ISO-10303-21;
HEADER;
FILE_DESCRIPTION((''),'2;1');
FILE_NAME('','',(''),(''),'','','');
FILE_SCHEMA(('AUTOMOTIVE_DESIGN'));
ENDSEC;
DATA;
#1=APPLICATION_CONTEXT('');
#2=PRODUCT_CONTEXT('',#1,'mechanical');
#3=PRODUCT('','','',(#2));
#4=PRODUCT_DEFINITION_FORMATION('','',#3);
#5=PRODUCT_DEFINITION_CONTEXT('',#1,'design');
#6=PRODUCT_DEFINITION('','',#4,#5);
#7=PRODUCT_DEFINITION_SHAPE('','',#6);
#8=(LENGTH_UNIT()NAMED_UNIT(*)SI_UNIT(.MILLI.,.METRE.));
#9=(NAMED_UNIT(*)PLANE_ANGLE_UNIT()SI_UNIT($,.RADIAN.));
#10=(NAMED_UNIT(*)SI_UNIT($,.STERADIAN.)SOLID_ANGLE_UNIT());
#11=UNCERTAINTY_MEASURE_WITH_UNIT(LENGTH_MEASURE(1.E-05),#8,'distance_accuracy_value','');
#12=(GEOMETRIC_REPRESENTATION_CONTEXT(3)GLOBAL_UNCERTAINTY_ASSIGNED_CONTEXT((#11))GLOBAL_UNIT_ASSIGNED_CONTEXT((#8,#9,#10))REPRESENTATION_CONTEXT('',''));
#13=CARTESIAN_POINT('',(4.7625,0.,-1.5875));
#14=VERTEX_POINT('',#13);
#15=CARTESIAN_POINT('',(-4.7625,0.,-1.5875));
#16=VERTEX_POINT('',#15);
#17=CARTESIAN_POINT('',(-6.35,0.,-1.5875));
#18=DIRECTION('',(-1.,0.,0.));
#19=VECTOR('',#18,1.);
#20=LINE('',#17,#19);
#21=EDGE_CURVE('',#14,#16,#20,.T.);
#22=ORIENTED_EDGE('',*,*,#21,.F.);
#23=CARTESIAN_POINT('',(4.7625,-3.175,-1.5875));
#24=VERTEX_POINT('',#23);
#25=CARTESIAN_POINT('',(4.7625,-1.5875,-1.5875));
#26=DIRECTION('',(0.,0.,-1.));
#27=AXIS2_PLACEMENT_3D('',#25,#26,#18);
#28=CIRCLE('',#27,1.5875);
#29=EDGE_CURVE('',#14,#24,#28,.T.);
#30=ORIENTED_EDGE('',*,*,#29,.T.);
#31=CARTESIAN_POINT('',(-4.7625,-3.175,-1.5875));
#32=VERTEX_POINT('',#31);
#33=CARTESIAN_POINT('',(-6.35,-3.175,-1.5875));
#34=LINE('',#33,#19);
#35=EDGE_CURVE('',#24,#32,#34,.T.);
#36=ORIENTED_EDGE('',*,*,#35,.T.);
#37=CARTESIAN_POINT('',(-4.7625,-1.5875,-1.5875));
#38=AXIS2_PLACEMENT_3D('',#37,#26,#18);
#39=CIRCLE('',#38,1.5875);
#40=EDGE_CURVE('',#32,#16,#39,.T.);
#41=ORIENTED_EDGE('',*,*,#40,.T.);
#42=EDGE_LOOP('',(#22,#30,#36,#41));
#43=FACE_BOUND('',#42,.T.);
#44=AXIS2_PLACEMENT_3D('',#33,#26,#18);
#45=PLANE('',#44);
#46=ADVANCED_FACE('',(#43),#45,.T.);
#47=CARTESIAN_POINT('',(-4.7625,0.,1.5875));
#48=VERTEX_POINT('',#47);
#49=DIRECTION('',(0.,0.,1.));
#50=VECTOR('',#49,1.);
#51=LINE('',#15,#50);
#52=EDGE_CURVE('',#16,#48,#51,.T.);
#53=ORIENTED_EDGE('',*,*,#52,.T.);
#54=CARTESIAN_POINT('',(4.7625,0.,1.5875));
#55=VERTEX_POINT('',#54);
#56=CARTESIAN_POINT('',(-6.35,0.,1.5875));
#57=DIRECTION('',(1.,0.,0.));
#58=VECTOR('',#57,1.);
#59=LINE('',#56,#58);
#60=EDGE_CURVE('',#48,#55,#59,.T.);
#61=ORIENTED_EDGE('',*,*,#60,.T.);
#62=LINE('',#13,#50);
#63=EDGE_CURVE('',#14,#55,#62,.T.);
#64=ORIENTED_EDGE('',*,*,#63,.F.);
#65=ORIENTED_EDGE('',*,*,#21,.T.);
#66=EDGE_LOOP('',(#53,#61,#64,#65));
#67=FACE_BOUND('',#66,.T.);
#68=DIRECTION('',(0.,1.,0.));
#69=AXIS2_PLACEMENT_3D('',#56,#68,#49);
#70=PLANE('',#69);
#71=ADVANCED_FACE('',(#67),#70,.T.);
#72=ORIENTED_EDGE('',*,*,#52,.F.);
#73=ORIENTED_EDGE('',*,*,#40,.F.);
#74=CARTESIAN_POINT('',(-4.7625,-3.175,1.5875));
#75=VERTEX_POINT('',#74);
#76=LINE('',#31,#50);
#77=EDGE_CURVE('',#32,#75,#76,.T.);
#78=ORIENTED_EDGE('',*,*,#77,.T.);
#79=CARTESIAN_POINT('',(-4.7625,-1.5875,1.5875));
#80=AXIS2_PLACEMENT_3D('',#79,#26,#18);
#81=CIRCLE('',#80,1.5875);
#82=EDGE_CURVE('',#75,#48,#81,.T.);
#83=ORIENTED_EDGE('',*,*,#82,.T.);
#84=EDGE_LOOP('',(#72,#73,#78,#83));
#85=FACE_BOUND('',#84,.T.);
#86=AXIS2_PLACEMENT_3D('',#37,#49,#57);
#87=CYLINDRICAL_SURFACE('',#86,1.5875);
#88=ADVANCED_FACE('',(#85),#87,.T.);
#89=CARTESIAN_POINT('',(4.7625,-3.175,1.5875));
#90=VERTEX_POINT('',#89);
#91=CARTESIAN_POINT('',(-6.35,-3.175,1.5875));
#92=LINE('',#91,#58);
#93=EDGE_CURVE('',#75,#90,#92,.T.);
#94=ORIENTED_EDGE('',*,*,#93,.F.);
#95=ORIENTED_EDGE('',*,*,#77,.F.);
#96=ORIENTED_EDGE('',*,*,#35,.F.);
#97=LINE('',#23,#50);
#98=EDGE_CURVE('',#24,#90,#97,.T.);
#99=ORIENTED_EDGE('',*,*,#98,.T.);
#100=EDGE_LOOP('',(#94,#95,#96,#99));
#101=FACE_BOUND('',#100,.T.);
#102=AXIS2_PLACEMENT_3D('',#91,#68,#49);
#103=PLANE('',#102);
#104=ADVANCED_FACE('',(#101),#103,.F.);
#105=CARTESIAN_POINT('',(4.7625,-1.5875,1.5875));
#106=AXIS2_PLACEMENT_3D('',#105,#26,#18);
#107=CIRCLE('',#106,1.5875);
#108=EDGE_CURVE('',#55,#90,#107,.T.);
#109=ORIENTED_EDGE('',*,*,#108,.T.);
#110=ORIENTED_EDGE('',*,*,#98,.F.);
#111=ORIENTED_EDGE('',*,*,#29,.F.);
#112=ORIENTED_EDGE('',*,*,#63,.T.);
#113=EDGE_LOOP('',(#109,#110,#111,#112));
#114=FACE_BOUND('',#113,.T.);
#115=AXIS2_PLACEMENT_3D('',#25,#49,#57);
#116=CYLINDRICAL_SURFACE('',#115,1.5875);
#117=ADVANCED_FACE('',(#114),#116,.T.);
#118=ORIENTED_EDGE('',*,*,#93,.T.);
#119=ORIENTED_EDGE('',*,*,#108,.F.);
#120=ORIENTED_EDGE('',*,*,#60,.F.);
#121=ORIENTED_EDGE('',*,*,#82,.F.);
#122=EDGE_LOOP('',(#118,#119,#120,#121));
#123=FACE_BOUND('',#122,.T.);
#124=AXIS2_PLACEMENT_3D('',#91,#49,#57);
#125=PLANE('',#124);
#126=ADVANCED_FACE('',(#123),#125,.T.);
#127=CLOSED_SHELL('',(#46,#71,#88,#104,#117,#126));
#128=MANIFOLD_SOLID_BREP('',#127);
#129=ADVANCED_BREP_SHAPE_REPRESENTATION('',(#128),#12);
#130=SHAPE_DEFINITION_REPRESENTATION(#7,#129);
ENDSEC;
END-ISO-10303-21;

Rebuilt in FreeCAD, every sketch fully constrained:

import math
import FreeCAD as App
import Part
import Sketcher
from FreeCAD import Vector
Q = App.Units.Quantity


def add_polygon(sketch, points):
    """Adds a closed chain of lines whose ends are joined by coincident constraints."""
    first, n = sketch.GeometryCount, len(points)
    for a, b in zip(points, points[1:] + points[:1]):
        sketch.addGeometry(Part.LineSegment(App.Vector(*a, 0), App.Vector(*b, 0)), False)
    for i in range(n):
        sketch.addConstraint(Sketcher.Constraint("Coincident", first + i, 2, first + (i + 1) % n, 1))

doc = App.newDocument("Part")
body = doc.addObject("PartDesign::Body", "Body")

sketch1 = body.newObject("Sketcher::SketchObject", "Sketch")
sketch1.AttachmentSupport = (doc.getObject("XZ_Plane"), [""])
sketch1.MapMode = "FlatFace"
add_polygon(sketch1, [(-6.35, -1.5875), (-6.35, 1.5875), (6.35, 1.5875), (6.35, -1.5875)])
sketch1.addConstraint([
    Sketcher.Constraint("Vertical", 0),
    Sketcher.Constraint("Horizontal", 1),
    Sketcher.Constraint("Vertical", 2),
    Sketcher.Constraint("Horizontal", 3),
    Sketcher.Constraint("Symmetric", 0, 2, 2, 2, -1, 1),
    Sketcher.Constraint("DistanceX", 1, 1, 1, 2, Q("0.5 in")),
    Sketcher.Constraint("DistanceY", 0, 1, 0, 2, Q("0.125 in")),
])
pad1 = body.newObject("PartDesign::Pad", "Pad")
pad1.Profile = sketch1
pad1.Length = Q("0.125 in")

sketch2 = body.newObject("Sketcher::SketchObject", "Sketch001")
sketch2.AttachmentSupport = (doc.getObject("XY_Plane"), [""])
sketch2.MapMode = "FlatFace"
sketch2.AttachmentOffset = App.Placement(Vector(0, 0, 0.0625 * 25.4), App.Rotation())
add_polygon(sketch2, [(8.697, 2.347), (8.697, -5.522), (-8.697, -5.522), (-8.697, 2.347)])
sketch2.addGeometry(Part.ArcOfCircle(Part.Circle(Vector(4.7625, -1.5875, 0), Vector(0, 0, 1), 1.5875), math.radians(-90), math.radians(90)), False)
sketch2.addGeometry(Part.LineSegment(Vector(4.7625, 0, 0), Vector(-4.7625, 0, 0)), False)
sketch2.addGeometry(Part.ArcOfCircle(Part.Circle(Vector(-4.7625, -1.5875, 0), Vector(0, 0, 1), 1.5875), math.radians(90), math.radians(270)), False)
sketch2.addGeometry(Part.LineSegment(Vector(-4.7625, -3.175, 0), Vector(4.7625, -3.175, 0)), False)
sketch2.addConstraint([
    Sketcher.Constraint("Tangent", 4, 2, 5, 1),
    Sketcher.Constraint("Tangent", 5, 2, 6, 1),
    Sketcher.Constraint("Tangent", 6, 2, 7, 1),
    Sketcher.Constraint("Tangent", 7, 2, 4, 1),
    Sketcher.Constraint("Vertical", 0),
    Sketcher.Constraint("Horizontal", 1),
    Sketcher.Constraint("Vertical", 2),
    Sketcher.Constraint("Horizontal", 3),
    Sketcher.Constraint("Horizontal", 5),
    Sketcher.Constraint("Horizontal", 7),
    Sketcher.Constraint("Symmetric", 4, 2, 5, 2, -1, 1),
    Sketcher.Constraint("Radius", 4, Q("0.0625 in")),
    Sketcher.Constraint("DistanceX", 5, 2, 5, 1, Q("0.375 in")),
    Sketcher.Constraint("DistanceX", 1, 2, 1, 1, 17.394),
    Sketcher.Constraint("DistanceY", 0, 2, 0, 1, 7.869),
    Sketcher.Constraint("DistanceX", -1, 1, 0, 2, 8.697),
    Sketcher.Constraint("DistanceY", 0, 2, -1, 1, 5.522),
])
pocket1 = body.newObject("PartDesign::Pocket", "Pocket")
pocket1.Profile = sketch2
pocket1.Type = "ThroughAll"

doc.recompute()
